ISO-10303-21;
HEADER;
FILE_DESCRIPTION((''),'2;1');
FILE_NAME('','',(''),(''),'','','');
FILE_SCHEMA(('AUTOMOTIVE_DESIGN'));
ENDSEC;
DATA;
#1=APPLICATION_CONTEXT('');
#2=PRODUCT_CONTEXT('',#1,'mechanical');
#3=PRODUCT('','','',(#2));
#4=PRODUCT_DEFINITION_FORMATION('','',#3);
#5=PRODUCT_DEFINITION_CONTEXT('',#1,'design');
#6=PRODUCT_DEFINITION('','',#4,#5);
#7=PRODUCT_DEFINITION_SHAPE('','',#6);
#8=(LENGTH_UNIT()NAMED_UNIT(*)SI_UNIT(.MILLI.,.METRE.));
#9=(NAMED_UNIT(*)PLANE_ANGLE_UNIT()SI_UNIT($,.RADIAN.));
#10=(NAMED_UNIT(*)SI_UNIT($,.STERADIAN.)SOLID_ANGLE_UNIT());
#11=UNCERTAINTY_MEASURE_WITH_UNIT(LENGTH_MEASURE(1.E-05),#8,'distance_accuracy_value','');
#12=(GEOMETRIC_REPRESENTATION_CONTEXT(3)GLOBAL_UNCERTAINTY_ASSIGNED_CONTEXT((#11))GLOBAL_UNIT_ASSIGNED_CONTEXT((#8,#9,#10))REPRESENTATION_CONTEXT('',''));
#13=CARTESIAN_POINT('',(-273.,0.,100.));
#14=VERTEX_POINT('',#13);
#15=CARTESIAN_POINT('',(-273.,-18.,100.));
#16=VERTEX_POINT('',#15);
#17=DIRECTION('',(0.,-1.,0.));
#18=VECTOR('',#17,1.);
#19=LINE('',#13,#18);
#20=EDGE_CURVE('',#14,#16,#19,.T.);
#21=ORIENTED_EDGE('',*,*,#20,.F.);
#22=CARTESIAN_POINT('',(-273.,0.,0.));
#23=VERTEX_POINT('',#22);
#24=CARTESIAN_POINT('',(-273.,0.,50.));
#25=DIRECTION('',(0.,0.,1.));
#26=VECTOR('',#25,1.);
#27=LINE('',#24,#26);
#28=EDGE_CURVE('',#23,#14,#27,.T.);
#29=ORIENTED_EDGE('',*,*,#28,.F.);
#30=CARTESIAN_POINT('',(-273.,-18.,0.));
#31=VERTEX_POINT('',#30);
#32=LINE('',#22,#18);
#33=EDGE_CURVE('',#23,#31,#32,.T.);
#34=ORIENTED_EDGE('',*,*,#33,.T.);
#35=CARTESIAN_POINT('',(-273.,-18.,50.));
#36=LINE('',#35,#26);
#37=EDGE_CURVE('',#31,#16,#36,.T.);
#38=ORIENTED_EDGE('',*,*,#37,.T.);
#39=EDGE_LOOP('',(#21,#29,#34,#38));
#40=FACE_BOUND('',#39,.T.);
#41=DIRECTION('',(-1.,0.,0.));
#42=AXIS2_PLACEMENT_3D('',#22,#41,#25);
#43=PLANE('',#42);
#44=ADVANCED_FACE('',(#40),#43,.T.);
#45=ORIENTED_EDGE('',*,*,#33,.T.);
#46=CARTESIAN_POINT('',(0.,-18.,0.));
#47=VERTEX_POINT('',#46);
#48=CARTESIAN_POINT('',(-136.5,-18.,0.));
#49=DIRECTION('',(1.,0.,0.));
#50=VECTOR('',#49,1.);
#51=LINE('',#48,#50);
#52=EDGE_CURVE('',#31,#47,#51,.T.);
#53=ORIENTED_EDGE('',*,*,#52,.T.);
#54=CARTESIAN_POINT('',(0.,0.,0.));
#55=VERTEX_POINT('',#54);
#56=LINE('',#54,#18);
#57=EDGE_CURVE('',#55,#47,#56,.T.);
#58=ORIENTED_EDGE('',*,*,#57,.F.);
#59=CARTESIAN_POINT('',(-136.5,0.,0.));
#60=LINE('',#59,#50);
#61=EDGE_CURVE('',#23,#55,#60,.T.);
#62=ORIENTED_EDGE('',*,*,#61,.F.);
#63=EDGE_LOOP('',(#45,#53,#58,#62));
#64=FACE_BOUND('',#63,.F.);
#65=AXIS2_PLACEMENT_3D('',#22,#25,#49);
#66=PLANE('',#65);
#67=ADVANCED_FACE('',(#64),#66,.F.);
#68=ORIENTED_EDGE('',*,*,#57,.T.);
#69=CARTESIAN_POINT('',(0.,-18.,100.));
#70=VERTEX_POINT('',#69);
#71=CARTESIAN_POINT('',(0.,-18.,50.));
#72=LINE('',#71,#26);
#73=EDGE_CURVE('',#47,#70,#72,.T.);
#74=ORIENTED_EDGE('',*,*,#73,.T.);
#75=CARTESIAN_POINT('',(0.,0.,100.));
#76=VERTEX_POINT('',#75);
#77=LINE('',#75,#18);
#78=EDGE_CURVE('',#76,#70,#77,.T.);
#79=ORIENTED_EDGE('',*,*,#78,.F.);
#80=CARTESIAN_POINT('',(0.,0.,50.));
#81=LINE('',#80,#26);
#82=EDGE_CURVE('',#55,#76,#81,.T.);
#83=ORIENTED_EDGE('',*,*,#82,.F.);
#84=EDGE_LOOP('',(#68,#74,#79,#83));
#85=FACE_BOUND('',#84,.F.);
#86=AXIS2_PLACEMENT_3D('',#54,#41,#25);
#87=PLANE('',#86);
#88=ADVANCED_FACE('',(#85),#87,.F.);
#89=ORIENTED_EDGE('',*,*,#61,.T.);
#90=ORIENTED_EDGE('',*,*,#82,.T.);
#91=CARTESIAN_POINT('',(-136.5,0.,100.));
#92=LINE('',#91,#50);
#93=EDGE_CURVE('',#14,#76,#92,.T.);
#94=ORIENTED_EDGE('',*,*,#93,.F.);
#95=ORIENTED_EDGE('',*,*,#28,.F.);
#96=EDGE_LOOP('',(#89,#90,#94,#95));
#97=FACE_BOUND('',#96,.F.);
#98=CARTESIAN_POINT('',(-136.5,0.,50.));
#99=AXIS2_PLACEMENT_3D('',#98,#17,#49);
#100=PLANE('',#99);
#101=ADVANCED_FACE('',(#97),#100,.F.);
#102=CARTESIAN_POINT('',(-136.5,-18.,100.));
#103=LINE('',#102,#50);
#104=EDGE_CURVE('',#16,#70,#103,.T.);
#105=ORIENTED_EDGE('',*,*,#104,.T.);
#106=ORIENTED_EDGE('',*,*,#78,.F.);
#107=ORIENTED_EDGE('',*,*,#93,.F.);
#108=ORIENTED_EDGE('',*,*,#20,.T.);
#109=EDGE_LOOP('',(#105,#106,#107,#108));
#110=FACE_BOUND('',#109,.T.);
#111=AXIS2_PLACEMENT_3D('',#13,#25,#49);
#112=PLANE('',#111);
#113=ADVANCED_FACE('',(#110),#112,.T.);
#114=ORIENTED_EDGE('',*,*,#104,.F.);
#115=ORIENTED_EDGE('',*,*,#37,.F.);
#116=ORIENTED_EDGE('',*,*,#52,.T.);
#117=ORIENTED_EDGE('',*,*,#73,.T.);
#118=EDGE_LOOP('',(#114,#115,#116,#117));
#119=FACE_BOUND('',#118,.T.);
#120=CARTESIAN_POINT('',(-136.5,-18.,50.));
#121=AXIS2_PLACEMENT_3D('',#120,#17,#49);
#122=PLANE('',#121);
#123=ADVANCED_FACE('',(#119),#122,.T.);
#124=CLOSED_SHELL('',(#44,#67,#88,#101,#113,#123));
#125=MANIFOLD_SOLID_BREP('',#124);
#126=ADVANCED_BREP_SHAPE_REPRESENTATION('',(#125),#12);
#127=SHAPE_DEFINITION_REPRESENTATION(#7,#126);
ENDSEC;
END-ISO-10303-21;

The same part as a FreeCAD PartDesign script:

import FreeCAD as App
import Part
import Sketcher
from FreeCAD import Vector


def add_polygon(sketch, points):
    """Adds a closed chain of lines whose ends are joined by coincident constraints."""
    first, n = sketch.GeometryCount, len(points)
    for a, b in zip(points, points[1:] + points[:1]):
        sketch.addGeometry(Part.LineSegment(App.Vector(*a, 0), App.Vector(*b, 0)), False)
    for i in range(n):
        sketch.addConstraint(Sketcher.Constraint("Coincident", first + i, 2, first + (i + 1) % n, 1))

doc = App.newDocument("Part")
params = doc.addObject("Spreadsheet::Sheet", "Params")
for row, (alias, value) in enumerate([
    ("sketch1_width", "273 mm"),
    ("sketch1_height", "100 mm"),
    ("pad1_length", "18 mm"),
], start=1):
    params.set(f"A{row}", alias)
    params.set(f"B{row}", "=" + value)
    params.setAlias(f"B{row}", alias)

body = doc.addObject("PartDesign::Body", "Body")

sketch1 = body.newObject("Sketcher::SketchObject", "Sketch")
sketch1.AttachmentSupport = (doc.getObject("XZ_Plane"), [""])
sketch1.MapMode = "FlatFace"
add_polygon(sketch1, [(-273, 100), (-273, 0), (0, 0), (0, 100)])
sketch1.addConstraint(Sketcher.Constraint("Vertical", 0))
sketch1.addConstraint(Sketcher.Constraint("Horizontal", 1))
sketch1.addConstraint(Sketcher.Constraint("Vertical", 2))
sketch1.addConstraint(Sketcher.Constraint("Horizontal", 3))
sketch1.addConstraint(Sketcher.Constraint("Coincident", 1, 2, -1, 1))
sketch1.addConstraint(Sketcher.Constraint("DistanceX", 1, 1, 1, 2, 273.0))
sketch1.addConstraint(Sketcher.Constraint("DistanceY", 0, 2, 0, 1, 100.0))
sketch1.setExpression("Constraints[9]", "Params.sketch1_width")
sketch1.setExpression("Constraints[10]", "Params.sketch1_height")
pad1 = body.newObject("PartDesign::Pad", "Pad")
pad1.Profile = sketch1
pad1.setExpression("Length", "Params.pad1_length")

doc.recompute()
